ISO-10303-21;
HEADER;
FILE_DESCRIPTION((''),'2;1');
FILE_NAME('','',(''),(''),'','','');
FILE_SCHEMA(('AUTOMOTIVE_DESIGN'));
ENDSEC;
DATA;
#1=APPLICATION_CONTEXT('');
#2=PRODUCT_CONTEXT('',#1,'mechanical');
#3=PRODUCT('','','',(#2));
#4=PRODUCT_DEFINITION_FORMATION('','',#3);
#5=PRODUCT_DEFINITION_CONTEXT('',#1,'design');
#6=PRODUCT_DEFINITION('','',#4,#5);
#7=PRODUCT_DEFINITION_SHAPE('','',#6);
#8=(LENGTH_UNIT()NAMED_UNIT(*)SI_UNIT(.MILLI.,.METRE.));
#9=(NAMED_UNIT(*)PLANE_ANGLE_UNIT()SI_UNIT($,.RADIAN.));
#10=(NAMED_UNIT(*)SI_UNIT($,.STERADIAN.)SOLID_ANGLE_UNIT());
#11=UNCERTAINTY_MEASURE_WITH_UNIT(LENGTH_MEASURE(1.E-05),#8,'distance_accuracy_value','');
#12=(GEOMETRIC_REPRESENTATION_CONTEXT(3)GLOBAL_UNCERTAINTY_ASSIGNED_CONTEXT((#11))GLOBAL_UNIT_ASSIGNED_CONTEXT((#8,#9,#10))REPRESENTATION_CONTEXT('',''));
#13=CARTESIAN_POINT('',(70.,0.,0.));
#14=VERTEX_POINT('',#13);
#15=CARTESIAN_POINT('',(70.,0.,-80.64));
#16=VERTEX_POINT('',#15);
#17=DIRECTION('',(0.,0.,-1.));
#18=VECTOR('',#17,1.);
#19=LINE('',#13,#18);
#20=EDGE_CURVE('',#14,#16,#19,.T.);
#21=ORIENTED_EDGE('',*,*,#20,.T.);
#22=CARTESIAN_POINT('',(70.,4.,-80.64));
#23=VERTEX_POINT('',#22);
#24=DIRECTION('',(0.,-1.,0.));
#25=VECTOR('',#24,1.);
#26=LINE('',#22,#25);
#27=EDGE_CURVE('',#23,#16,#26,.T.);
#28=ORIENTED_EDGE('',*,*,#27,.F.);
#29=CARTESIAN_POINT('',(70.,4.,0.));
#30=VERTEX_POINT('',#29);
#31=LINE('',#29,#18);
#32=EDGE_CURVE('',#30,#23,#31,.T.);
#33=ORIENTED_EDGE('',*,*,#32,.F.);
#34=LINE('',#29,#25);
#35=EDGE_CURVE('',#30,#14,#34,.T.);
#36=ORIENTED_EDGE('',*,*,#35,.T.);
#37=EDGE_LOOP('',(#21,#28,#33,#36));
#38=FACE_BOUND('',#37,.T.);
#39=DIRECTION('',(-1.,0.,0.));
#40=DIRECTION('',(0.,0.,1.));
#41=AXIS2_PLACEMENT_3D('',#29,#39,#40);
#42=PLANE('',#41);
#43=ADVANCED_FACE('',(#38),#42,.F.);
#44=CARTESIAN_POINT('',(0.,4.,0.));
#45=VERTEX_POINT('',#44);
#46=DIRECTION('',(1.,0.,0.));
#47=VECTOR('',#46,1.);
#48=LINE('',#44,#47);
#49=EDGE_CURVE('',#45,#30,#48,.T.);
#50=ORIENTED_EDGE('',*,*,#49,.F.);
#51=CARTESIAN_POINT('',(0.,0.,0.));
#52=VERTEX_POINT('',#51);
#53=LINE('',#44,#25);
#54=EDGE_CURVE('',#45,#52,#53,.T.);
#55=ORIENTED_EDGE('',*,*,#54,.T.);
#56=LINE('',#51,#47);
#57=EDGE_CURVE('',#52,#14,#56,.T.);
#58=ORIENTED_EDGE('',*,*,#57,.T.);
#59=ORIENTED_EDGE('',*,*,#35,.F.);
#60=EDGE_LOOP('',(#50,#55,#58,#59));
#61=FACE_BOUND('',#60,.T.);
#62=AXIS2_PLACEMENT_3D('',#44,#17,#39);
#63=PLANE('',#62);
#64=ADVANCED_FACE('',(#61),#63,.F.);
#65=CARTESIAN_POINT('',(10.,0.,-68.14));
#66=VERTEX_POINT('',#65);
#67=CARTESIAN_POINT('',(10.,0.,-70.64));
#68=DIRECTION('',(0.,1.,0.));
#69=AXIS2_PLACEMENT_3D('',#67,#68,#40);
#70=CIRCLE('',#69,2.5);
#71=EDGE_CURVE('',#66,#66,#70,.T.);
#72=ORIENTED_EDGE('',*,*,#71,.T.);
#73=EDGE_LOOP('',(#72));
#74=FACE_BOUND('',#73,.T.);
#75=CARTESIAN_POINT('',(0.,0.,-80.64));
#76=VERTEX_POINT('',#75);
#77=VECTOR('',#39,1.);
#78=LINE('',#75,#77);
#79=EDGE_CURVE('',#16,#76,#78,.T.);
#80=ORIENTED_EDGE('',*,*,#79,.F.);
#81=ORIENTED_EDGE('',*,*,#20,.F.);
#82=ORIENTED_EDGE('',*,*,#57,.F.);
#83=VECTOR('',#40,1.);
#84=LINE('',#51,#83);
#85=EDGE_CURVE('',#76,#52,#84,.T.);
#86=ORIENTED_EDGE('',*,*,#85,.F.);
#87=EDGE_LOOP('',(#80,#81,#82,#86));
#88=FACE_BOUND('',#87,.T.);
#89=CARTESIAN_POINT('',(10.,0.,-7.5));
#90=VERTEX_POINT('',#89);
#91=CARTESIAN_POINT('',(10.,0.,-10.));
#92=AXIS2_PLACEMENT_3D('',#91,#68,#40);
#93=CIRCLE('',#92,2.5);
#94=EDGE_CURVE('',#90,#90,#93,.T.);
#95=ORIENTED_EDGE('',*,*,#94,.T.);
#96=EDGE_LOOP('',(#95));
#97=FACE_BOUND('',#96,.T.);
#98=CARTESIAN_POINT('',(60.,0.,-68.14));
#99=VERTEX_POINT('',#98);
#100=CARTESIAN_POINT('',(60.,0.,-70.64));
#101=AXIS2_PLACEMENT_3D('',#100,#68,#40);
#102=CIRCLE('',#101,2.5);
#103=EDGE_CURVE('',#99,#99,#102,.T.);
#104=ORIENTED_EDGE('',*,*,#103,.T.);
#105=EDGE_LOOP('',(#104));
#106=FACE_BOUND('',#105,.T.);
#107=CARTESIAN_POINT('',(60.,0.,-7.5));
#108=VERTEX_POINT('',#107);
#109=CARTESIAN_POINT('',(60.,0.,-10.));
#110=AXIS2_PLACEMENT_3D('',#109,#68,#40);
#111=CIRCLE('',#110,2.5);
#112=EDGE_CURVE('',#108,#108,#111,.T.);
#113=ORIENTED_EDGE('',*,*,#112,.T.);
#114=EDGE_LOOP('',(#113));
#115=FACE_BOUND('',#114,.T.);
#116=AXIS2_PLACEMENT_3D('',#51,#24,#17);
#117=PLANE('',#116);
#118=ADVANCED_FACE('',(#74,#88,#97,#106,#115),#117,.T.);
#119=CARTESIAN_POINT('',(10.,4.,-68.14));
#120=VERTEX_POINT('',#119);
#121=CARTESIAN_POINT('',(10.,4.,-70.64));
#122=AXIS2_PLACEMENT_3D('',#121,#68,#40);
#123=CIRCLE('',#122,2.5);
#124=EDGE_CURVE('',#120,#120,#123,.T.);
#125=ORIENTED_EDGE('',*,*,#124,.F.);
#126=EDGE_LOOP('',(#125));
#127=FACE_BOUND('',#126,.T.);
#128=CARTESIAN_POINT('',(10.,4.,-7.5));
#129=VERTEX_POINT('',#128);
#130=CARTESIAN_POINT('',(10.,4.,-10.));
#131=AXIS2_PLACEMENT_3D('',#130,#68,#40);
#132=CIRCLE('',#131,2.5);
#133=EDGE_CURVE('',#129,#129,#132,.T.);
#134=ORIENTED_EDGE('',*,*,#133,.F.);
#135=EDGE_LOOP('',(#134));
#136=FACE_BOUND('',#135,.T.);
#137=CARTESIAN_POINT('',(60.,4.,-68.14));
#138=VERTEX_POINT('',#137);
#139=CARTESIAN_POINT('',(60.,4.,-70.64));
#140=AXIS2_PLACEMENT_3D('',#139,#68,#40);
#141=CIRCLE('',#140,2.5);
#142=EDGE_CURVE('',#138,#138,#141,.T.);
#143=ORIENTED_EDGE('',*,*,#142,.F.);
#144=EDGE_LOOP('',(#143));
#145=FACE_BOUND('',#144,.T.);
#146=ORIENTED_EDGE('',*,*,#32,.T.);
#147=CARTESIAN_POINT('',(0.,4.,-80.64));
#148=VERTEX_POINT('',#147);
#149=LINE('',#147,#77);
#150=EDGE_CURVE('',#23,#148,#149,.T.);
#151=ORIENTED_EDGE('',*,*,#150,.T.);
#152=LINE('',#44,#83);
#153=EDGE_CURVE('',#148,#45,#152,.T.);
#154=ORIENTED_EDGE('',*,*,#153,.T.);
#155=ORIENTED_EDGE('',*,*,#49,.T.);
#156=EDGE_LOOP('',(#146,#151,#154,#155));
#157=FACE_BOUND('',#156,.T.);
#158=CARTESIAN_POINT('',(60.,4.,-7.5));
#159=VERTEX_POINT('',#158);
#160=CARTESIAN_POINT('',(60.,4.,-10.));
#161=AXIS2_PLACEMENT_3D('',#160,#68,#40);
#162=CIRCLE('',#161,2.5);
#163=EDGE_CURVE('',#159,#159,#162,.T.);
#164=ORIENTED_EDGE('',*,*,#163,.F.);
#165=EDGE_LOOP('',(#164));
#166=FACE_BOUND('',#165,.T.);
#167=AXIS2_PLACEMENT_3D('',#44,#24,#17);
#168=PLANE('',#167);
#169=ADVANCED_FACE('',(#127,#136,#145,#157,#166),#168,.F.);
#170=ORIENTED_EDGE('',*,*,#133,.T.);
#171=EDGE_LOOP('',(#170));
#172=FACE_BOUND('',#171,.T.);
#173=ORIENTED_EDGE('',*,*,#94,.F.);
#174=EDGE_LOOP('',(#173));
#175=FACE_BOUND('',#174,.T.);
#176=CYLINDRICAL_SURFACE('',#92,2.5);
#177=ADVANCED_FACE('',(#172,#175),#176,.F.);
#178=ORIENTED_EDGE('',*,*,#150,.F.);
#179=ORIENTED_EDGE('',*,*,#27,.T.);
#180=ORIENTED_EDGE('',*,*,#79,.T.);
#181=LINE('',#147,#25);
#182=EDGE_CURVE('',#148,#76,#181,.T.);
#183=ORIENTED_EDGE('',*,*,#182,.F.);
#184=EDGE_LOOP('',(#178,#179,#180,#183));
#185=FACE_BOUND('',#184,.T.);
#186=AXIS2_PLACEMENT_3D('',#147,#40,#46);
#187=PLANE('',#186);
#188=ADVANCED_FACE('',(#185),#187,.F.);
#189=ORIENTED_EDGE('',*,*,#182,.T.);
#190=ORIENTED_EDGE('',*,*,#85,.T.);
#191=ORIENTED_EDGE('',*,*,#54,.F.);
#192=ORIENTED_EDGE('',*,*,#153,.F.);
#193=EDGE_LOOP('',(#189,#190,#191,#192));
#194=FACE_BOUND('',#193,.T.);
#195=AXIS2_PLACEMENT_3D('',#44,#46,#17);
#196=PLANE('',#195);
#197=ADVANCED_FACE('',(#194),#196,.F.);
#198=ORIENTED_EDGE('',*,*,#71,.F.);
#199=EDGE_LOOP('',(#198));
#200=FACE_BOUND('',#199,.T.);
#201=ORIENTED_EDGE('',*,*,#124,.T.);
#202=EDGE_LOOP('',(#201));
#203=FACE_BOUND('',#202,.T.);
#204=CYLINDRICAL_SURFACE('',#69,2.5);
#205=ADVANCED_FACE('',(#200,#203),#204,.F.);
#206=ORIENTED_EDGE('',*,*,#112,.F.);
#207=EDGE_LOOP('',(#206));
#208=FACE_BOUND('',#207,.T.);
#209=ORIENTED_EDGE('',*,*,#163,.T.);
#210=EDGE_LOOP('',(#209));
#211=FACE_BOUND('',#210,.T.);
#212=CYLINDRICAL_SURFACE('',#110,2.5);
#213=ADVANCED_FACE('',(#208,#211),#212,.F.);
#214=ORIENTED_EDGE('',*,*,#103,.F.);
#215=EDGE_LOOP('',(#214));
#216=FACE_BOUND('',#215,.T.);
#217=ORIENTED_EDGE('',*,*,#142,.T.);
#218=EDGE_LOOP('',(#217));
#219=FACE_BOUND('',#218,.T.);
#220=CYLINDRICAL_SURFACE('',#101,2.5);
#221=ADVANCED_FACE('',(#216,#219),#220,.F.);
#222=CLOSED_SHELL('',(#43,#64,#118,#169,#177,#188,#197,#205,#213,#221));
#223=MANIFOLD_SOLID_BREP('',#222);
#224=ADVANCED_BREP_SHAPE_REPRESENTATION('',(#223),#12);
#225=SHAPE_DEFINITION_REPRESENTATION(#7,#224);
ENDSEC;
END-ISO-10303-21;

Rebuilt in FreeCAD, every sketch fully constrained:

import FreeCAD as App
import Part
import Sketcher
from FreeCAD import Vector


def add_polygon(sketch, points):
    """Adds a closed chain of lines whose ends are joined by coincident constraints."""
    first, n = sketch.GeometryCount, len(points)
    for a, b in zip(points, points[1:] + points[:1]):
        sketch.addGeometry(Part.LineSegment(App.Vector(*a, 0), App.Vector(*b, 0)), False)
    for i in range(n):
        sketch.addConstraint(Sketcher.Constraint("Coincident", first + i, 2, first + (i + 1) % n, 1))

doc = App.newDocument("Part")
body = doc.addObject("PartDesign::Body", "Body")

# Sketch on XZ plane
sketch1 = body.newObject("Sketcher::SketchObject", "Sketch")
sketch1.AttachmentSupport = (doc.getObject("XZ_Plane"), [""])
sketch1.MapMode = "FlatFace"
add_polygon(sketch1, [(0, -80.64), (0, 0), (70, 0), (70, -80.64)])  # lines 0-3
sketch1.addConstraint(Sketcher.Constraint("Vertical", 0))
sketch1.addConstraint(Sketcher.Constraint("Horizontal", 1))
sketch1.addConstraint(Sketcher.Constraint("Vertical", 2))
sketch1.addConstraint(Sketcher.Constraint("Horizontal", 3))
sketch1.addConstraint(Sketcher.Constraint("Coincident", 0, 2, -1, 1))
sketch1.addConstraint(Sketcher.Constraint("DistanceX", 1, 1, 1, 2, 70.0))
sketch1.addConstraint(Sketcher.Constraint("DistanceY", 0, 1, 0, 2, 80.64))
pad1 = body.newObject("PartDesign::Pad", "Pad")
pad1.Profile = sketch1
pad1.Length = 4
pad1.Reversed = True

# Sketch on XZ plane
sketch2 = body.newObject("Sketcher::SketchObject", "Sketch001")
sketch2.AttachmentSupport = (doc.getObject("XZ_Plane"), [""])
sketch2.MapMode = "FlatFace"
sketch2.AttachmentOffset = App.Placement(Vector(0, 0, -4), App.Rotation())
sketch2.addGeometry(Part.Circle(Vector(10, -70.64, 0), Vector(0, 0, 1), 2.5), False)
sketch2.addGeometry(Part.Circle(Vector(60, -70.64, 0), Vector(0, 0, 1), 2.5), False)
sketch2.addGeometry(Part.Circle(Vector(60, -10, 0), Vector(0, 0, 1), 2.5), False)
sketch2.addGeometry(Part.Circle(Vector(10, -10, 0), Vector(0, 0, 1), 2.5), False)
sketch2.addConstraint(Sketcher.Constraint("Equal", 0, 1))
sketch2.addConstraint(Sketcher.Constraint("Equal", 1, 2))
sketch2.addConstraint(Sketcher.Constraint("Equal", 2, 3))
sketch2.addConstraint(Sketcher.Constraint("Horizontal", 0, 3, 1, 3))
sketch2.addConstraint(Sketcher.Constraint("Horizontal", 2, 3, 3, 3))
sketch2.addConstraint(Sketcher.Constraint("Vertical", 1, 3, 2, 3))
sketch2.addConstraint(Sketcher.Constraint("Vertical", 0, 3, 3, 3))
sketch2.addConstraint(Sketcher.Constraint("Diameter", 0, 5.0))
sketch2.addConstraint(Sketcher.Constraint("DistanceX", -1, 1, 0, 3, 10.0))
sketch2.addConstraint(Sketcher.Constraint("DistanceX", -1, 1, 1, 3, 60.0))
sketch2.addConstraint(Sketcher.Constraint("DistanceY", 2, 3, -1, 1, 10.0))
sketch2.addConstraint(Sketcher.Constraint("DistanceY", 0, 3, -1, 1, 70.64))
pocket1 = body.newObject("PartDesign::Pocket", "Pocket")
pocket1.Profile = sketch2
pocket1.Type = "ThroughAll"
pocket1.Reversed = True

doc.recompute()
